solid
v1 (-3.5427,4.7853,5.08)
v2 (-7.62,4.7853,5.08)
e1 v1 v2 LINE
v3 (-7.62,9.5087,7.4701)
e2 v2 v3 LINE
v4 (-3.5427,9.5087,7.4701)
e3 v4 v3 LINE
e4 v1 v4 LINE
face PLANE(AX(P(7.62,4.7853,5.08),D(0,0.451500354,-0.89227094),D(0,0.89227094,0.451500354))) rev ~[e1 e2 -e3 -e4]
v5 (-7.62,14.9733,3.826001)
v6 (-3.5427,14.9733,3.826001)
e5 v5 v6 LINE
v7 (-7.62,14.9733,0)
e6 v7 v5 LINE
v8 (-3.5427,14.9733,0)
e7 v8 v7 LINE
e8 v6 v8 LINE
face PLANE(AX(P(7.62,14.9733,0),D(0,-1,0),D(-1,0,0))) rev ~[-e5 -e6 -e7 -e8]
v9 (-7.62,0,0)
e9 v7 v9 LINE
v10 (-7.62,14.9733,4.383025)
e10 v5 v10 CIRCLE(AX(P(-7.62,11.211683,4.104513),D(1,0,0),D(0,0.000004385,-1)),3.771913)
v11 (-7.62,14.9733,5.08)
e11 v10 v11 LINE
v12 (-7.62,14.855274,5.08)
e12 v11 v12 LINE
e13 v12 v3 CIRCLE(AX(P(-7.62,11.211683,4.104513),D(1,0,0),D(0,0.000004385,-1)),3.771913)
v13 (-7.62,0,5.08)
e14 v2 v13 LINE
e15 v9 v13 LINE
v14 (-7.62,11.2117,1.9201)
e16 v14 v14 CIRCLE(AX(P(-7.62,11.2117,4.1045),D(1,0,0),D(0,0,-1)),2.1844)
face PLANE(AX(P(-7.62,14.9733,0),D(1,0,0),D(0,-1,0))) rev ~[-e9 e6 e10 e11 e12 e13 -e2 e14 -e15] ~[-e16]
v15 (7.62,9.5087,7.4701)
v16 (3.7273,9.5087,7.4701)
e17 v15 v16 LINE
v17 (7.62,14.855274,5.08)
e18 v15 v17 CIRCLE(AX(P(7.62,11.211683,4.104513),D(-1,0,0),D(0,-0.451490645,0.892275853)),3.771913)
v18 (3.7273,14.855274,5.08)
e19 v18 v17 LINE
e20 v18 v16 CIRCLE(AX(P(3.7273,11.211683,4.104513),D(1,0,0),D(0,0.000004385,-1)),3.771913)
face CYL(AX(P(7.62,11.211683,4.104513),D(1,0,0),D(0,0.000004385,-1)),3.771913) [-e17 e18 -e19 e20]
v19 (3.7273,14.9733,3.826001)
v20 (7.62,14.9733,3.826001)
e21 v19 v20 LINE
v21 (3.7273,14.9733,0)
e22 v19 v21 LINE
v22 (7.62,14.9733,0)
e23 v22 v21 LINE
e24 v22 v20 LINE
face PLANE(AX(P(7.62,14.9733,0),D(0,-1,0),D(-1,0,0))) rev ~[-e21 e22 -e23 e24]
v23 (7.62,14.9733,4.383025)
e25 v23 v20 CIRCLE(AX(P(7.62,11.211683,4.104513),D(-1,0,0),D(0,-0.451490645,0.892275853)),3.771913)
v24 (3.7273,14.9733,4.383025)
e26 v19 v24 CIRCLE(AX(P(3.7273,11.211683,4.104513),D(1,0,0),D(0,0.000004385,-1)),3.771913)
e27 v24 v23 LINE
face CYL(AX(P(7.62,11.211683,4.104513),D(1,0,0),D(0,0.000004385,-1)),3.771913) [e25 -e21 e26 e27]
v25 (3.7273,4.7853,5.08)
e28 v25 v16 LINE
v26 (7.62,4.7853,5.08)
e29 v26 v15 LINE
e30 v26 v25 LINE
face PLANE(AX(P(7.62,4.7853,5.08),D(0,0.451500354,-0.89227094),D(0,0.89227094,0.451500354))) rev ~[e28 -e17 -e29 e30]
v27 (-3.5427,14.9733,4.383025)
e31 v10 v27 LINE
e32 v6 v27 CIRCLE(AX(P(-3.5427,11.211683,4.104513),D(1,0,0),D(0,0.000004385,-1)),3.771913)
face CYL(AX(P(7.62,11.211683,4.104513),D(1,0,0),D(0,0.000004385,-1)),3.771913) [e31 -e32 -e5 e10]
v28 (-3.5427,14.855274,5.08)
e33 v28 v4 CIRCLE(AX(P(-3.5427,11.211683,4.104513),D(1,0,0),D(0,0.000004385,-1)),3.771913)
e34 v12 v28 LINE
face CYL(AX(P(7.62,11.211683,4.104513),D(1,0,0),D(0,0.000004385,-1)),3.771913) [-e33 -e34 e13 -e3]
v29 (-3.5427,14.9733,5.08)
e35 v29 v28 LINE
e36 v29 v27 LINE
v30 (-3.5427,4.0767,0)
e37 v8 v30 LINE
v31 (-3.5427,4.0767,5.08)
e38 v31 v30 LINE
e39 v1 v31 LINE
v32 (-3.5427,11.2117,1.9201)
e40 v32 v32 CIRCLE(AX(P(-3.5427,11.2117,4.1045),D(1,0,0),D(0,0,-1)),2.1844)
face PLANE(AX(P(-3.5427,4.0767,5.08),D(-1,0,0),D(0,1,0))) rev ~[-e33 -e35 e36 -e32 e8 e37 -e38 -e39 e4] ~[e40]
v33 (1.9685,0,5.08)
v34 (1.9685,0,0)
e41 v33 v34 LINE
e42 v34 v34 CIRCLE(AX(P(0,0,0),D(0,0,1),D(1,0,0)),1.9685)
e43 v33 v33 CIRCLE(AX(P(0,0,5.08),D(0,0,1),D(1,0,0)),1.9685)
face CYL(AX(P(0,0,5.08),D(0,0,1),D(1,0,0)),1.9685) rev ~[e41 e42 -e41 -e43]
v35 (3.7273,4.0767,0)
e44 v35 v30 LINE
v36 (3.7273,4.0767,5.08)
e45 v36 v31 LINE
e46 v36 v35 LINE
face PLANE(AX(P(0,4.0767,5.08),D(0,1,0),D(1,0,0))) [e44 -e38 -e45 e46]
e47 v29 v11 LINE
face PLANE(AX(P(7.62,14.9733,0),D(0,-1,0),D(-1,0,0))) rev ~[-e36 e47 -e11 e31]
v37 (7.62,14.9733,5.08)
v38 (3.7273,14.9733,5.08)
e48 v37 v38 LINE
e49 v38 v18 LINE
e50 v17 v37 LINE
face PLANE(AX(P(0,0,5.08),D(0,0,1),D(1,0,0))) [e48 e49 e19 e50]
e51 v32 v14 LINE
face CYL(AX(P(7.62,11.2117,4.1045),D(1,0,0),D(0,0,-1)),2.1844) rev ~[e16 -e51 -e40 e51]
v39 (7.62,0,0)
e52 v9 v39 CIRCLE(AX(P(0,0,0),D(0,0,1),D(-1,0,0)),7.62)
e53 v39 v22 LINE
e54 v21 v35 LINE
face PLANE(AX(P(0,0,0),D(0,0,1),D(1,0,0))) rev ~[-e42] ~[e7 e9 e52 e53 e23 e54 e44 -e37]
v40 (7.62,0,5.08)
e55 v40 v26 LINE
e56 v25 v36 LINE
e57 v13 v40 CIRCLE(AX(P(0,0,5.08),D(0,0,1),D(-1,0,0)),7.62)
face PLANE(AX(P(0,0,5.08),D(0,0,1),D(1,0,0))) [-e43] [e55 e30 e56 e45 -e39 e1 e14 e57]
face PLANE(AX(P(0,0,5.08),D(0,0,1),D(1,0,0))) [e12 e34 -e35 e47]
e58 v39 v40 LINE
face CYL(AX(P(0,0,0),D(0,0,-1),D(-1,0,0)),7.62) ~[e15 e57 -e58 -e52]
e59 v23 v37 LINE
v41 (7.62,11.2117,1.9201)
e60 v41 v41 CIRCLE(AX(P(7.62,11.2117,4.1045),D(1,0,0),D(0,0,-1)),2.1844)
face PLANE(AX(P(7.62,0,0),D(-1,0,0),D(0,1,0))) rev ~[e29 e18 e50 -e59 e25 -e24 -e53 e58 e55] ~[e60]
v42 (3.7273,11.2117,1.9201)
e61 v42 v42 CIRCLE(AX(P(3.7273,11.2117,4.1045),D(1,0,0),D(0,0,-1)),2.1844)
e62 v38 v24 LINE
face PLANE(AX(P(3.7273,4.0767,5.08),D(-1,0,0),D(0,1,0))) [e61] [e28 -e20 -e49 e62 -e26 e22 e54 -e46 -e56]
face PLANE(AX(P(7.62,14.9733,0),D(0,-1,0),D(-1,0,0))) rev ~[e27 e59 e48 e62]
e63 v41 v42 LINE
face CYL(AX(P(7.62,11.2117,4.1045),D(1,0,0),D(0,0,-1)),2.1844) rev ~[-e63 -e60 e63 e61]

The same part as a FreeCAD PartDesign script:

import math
import FreeCAD as App
import Part
import Sketcher
Q = App.Units.Quantity


def add_polygon(sketch, points):
    """Adds a closed chain of lines whose ends are joined by coincident constraints."""
    first, n = sketch.GeometryCount, len(points)
    for a, b in zip(points, points[1:] + points[:1]):
        sketch.addGeometry(Part.LineSegment(App.Vector(*a, 0), App.Vector(*b, 0)), False)
    for i in range(n):
        sketch.addConstraint(Sketcher.Constraint("Coincident", first + i, 2, first + (i + 1) % n, 1))

doc = App.newDocument("Part")
params = doc.addObject("Spreadsheet::Sheet", "Params")
for row, (alias, value) in enumerate([
    ("sketch1_radius", "0.3 in"),
    ("pad1_length", "0.2 in"),
    ("sketch2_width", "0.253 in"),
    ("pad2_length", "0.6 in"),
    ("sketch4_diameter", "0.172 in"),
    ("sketch5_diameter", "0.155 in"),
], start=1):
    params.set(f"A{row}", alias)
    params.set(f"B{row}", "=" + value)
    params.setAlias(f"B{row}", alias)

body = doc.addObject("PartDesign::Body", "Body")

sketch1 = body.newObject("Sketcher::SketchObject", "Sketch")
sketch1.AttachmentSupport = (doc.getObject("XY_Plane"), [""])
sketch1.MapMode = "FlatFace"
sketch1.addGeometry([
    Part.ArcOfCircle(Part.Circle(App.Vector(0, 0, 0), App.Vector(0, 0, 1), 8), math.radians(180), math.radians(360)),
    Part.LineSegment(App.Vector(8, 0, 0), App.Vector(8, 15, 0)),
    Part.LineSegment(App.Vector(8, 15, 0), App.Vector(-8, 15, 0)),
    Part.LineSegment(App.Vector(-8, 15, 0), App.Vector(-8, 0, 0)),
], False)
sketch1.addConstraint([
    Sketcher.Constraint("Tangent", 0, 2, 1, 1),
    Sketcher.Constraint("Coincident", 1, 2, 2, 1),
    Sketcher.Constraint("Coincident", 2, 2, 3, 1),
    Sketcher.Constraint("Tangent", 3, 2, 0, 1),
    Sketcher.Constraint("Vertical", 1),
    Sketcher.Constraint("Horizontal", 2),
    Sketcher.Constraint("Vertical", 3),
    Sketcher.Constraint("Coincident", 0, 3, -1, 1),
    Sketcher.Constraint("Radius", 0, Q("0.3 in")),
    Sketcher.Constraint("DistanceY", 1, 1, 1, 2, Q("0.5895 in")),
])
sketch1.setExpression("Constraints[8]", "Params.sketch1_radius")
pad1 = body.newObject("PartDesign::Pad", "Pad")
pad1.Profile = sketch1
pad1.setExpression("Length", "Params.pad1_length")

sketch2 = body.newObject("Sketcher::SketchObject", "Sketch001")
sketch2.AttachmentSupport = (doc.getObject("YZ_Plane"), [""])
sketch2.MapMode = "FlatFace"
sketch2.AttachmentOffset = App.Placement(App.Vector(0, 0, 0.3 * 25.4), App.Rotation())
sketch2.addGeometry([
    Part.LineSegment(App.Vector(4.8, 0.3, 0), App.Vector(11.2, 0.3, 0)),
    Part.ArcOfCircle(Part.Circle(App.Vector(11.2, 4.1, 0), App.Vector(0, 0, 1), 3.8), math.radians(-90), math.radians(117)),
    Part.LineSegment(App.Vector(9.5, 7.5, 0), App.Vector(4.8, 5.1, 0)),
    Part.LineSegment(App.Vector(4.8, 5.1, 0), App.Vector(4.8, 0.3, 0)),
], False)
sketch2.addConstraint([
    Sketcher.Constraint("Tangent", 0, 2, 1, 1),
    Sketcher.Constraint("Tangent", 1, 2, 2, 1),
    Sketcher.Constraint("Coincident", 2, 2, 3, 1),
    Sketcher.Constraint("Coincident", 3, 2, 0, 1),
    Sketcher.Constraint("Horizontal", 0),
    Sketcher.Constraint("Vertical", 3),
    Sketcher.Constraint("Radius", 1, Q("0.1485 in")),
    Sketcher.Constraint("DistanceY", -1, 1, 2, 2, Q("0.2 in")),
    Sketcher.Constraint("DistanceX", 0, 1, 0, 2, Q("0.253 in")),
    Sketcher.Constraint("Angle", 2, Q("-153.16 deg")),
    Sketcher.Constraint("DistanceX", -1, 1, 1, 3, Q("0.4414 in")),
])
sketch2.setExpression("Constraints[8]", "Params.sketch2_width")
pad2 = body.newObject("PartDesign::Pad", "Pad001")
pad2.Profile = sketch2
pad2.setExpression("Length", "Params.pad2_length")
pad2.Reversed = True

sketch3 = body.newObject("Sketcher::SketchObject", "Sketch002")
sketch3.AttachmentSupport = (doc.getObject("XY_Plane"), [""])
sketch3.MapMode = "FlatFace"
sketch3.AttachmentOffset = App.Placement(App.Vector(0, 0, 0.2 * 25.4), App.Rotation())
add_polygon(sketch3, [(4, 4), (4, 15), (-4, 15), (-4, 4)])
sketch3.addConstraint([
    Sketcher.Constraint("Vertical", 0),
    Sketcher.Constraint("Horizontal", 1),
    Sketcher.Constraint("Vertical", 2),
    Sketcher.Constraint("Horizontal", 3),
    Sketcher.Constraint("DistanceX", 1, 2, 1, 1, 7.27),
    Sketcher.Constraint("DistanceY", 0, 1, 0, 2, 11.2007),
    Sketcher.Constraint("DistanceY", -1, 1, 2, 2, Q("0.1605 in")),
    Sketcher.Constraint("DistanceX", -1, 1, 0, 2, 3.7273),
])
pocket1 = body.newObject("PartDesign::Pocket", "Pocket")
pocket1.Profile = sketch3
pocket1.Type = "ThroughAll"
pocket1.Midplane = True

sketch4 = body.newObject("Sketcher::SketchObject", "Sketch003")
sketch4.AttachmentSupport = (doc.getObject("YZ_Plane"), [""])
sketch4.MapMode = "FlatFace"
sketch4.AttachmentOffset = App.Placement(App.Vector(0, 0, 0.3 * 25.4), App.Rotation())
sketch4.addGeometry(Part.Circle(App.Vector(11.2, 4.1, 0), App.Vector(0, 0, 1), 2.2), False)
sketch4.addConstraint([
    Sketcher.Constraint("Diameter", 0, Q("0.172 in")),
    Sketcher.Constraint("DistanceX", -1, 1, 0, 3, Q("0.4414 in")),
    Sketcher.Constraint("DistanceY", -1, 1, 0, 3, Q("0.1616 in")),
])
sketch4.setExpression("Constraints[0]", "Params.sketch4_diameter")
pocket2 = body.newObject("PartDesign::Pocket", "Pocket001")
pocket2.Profile = sketch4
pocket2.Type = "ThroughAll"

sketch5 = body.newObject("Sketcher::SketchObject", "Sketch004")
sketch5.AttachmentSupport = (doc.getObject("XY_Plane"), [""])
sketch5.MapMode = "FlatFace"
sketch5.AttachmentOffset = App.Placement(App.Vector(0, 0, 0.2 * 25.4), App.Rotation())
sketch5.addGeometry(Part.Circle(App.Vector(0, 0, 0), App.Vector(0, 0, 1), 2), False)
sketch5.addConstraint([
    Sketcher.Constraint("Coincident", 0, 3, -1, 1),
    Sketcher.Constraint("Diameter", 0, Q("0.155 in")),
])
sketch5.setExpression("Constraints[1]", "Params.sketch5_diameter")
pocket3 = body.newObject("PartDesign::Pocket", "Pocket002")
pocket3.Profile = sketch5
pocket3.Type = "ThroughAll"

doc.recompute()
